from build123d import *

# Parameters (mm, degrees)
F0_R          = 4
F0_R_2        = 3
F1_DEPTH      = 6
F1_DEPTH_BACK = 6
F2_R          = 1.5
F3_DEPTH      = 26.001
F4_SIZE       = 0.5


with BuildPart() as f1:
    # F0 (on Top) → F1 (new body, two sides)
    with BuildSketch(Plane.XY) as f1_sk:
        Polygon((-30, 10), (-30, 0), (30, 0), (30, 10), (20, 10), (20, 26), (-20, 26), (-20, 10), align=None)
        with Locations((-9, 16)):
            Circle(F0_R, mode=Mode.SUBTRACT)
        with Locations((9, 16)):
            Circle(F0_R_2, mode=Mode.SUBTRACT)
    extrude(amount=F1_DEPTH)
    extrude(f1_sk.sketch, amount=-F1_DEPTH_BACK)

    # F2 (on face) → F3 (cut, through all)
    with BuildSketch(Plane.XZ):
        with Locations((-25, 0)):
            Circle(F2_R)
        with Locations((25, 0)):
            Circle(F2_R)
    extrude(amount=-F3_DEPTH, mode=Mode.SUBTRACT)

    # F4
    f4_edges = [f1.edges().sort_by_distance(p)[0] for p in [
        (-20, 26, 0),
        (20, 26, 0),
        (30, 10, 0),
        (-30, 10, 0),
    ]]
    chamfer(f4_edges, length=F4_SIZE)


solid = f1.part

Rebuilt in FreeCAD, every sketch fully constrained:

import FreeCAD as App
import Part
import Sketcher
from FreeCAD import Vector


def edges_at(feature, points):
    """Names of the edges that pass closest to the given points."""
    edges = feature.Shape.Edges
    near = lambda p: min(range(len(edges)), key=lambda i: edges[i].distToShape(Part.Vertex(*p))[0])
    return sorted({f"Edge{near(p) + 1}" for p in points})


def add_polygon(sketch, points):
    """Adds a closed chain of lines whose ends are joined by coincident constraints."""
    first, n = sketch.GeometryCount, len(points)
    for a, b in zip(points, points[1:] + points[:1]):
        sketch.addGeometry(Part.LineSegment(App.Vector(*a, 0), App.Vector(*b, 0)), False)
    for i in range(n):
        sketch.addConstraint(Sketcher.Constraint("Coincident", first + i, 2, first + (i + 1) % n, 1))

doc = App.newDocument("Part")
params = doc.addObject("Spreadsheet::Sheet", "Params")
for row, (alias, value) in enumerate([
    ("sketch1_diameter", "8 mm"),
    ("sketch1_diameter2", "6 mm"),
    ("sketch1_width", "60 mm"),
    ("sketch1_width2", "10 mm"),
    ("sketch1_height", "16 mm"),
    ("pad1_length", "6 mm"),
    ("pad1_length2", "6 mm"),
    ("sketch2_diameter", "3 mm"),
    ("chamfer_size", "0.5 mm"),
], start=1):
    params.set(f"A{row}", alias)
    params.set(f"B{row}", "=" + value)
    params.setAlias(f"B{row}", alias)

body = doc.addObject("PartDesign::Body", "Body")

# Sketch on XY plane
sketch1 = body.newObject("Sketcher::SketchObject", "Sketch")
sketch1.AttachmentSupport = (doc.getObject("XY_Plane"), [""])
sketch1.MapMode = "FlatFace"
add_polygon(sketch1, [(-30, 10), (-30, 0), (30, 0), (30, 10), (20, 10), (20, 26), (-20, 26), (-20, 10)])  # lines 0-7
sketch1.addGeometry(Part.Circle(Vector(-9, 16, 0), Vector(0, 0, 1), 4), False)  # 8
sketch1.addGeometry(Part.Circle(Vector(9, 16, 0), Vector(0, 0, 1), 3), False)  # 9
sketch1.addConstraint([
    Sketcher.Constraint("Vertical", 0),
    Sketcher.Constraint("Horizontal", 1),
    Sketcher.Constraint("Vertical", 2),
    Sketcher.Constraint("Horizontal", 3),
    Sketcher.Constraint("Vertical", 4),
    Sketcher.Constraint("Horizontal", 5),
    Sketcher.Constraint("Vertical", 6),
    Sketcher.Constraint("Horizontal", 7),
    Sketcher.Constraint("Symmetric", 0, 2, 1, 2, -1, 1),
    Sketcher.Constraint("Symmetric", 8, 3, 9, 3, -2),
    Sketcher.Constraint("Symmetric", 3, 2, 6, 2, -2),
    Sketcher.Constraint("Equal", 7, 0),
    Sketcher.Constraint("Diameter", 8, 8.0),
    Sketcher.Constraint("Diameter", 9, 6.0),
    Sketcher.Constraint("DistanceX", 1, 1, 1, 2, 60.0),
    Sketcher.Constraint("DistanceX", 3, 2, 3, 1, 10.0),
    Sketcher.Constraint("DistanceY", 4, 1, 4, 2, 16.0),
    Sketcher.Constraint("DistanceX", 8, 3, -1, 1, 9.0),
    Sketcher.Constraint("DistanceY", -1, 1, 8, 3, 16.0),
])
sketch1.setExpression("Constraints[20]", "Params.sketch1_diameter")
sketch1.setExpression("Constraints[21]", "Params.sketch1_diameter2")
sketch1.setExpression("Constraints[22]", "Params.sketch1_width")
sketch1.setExpression("Constraints[23]", "Params.sketch1_width2")
sketch1.setExpression("Constraints[24]", "Params.sketch1_height")
pad1 = body.newObject("PartDesign::Pad", "Pad")
pad1.Profile = sketch1
pad1.Type = "TwoLengths"
pad1.setExpression("Length", "Params.pad1_length")
pad1.setExpression("Length2", "Params.pad1_length2")

# Sketch on XZ plane
sketch2 = body.newObject("Sketcher::SketchObject", "Sketch001")
sketch2.AttachmentSupport = (doc.getObject("XZ_Plane"), [""])
sketch2.MapMode = "FlatFace"
sketch2.addGeometry([
    Part.Circle(Vector(-25, 0, 0), Vector(0, 0, 1), 1.5),
    Part.Circle(Vector(25, 0, 0), Vector(0, 0, 1), 1.5),
], False)
sketch2.addConstraint([
    Sketcher.Constraint("Equal", 0, 1),
    Sketcher.Constraint("Symmetric", 0, 3, 1, 3, -1, 1),
    Sketcher.Constraint("PointOnObject", 0, 3, -1),
    Sketcher.Constraint("Diameter", 0, 3.0),
    Sketcher.Constraint("DistanceX", 0, 3, -1, 1, 25.0),
])
sketch2.setExpression("Constraints[3]", "Params.sketch2_diameter")
pocket1 = body.newObject("PartDesign::Pocket", "Pocket")
pocket1.Profile = sketch2
pocket1.Type = "ThroughAll"
doc.recompute()

chamfer = body.newObject("PartDesign::Chamfer", "Chamfer")
chamfer.Base = (pocket1, edges_at(pocket1, [
    (-20, 26, 0),
    (20, 26, 0),
    (30, 10, 0),
    (-30, 10, 0),
]))
chamfer.setExpression("Size", "Params.chamfer_size")

doc.recompute()
